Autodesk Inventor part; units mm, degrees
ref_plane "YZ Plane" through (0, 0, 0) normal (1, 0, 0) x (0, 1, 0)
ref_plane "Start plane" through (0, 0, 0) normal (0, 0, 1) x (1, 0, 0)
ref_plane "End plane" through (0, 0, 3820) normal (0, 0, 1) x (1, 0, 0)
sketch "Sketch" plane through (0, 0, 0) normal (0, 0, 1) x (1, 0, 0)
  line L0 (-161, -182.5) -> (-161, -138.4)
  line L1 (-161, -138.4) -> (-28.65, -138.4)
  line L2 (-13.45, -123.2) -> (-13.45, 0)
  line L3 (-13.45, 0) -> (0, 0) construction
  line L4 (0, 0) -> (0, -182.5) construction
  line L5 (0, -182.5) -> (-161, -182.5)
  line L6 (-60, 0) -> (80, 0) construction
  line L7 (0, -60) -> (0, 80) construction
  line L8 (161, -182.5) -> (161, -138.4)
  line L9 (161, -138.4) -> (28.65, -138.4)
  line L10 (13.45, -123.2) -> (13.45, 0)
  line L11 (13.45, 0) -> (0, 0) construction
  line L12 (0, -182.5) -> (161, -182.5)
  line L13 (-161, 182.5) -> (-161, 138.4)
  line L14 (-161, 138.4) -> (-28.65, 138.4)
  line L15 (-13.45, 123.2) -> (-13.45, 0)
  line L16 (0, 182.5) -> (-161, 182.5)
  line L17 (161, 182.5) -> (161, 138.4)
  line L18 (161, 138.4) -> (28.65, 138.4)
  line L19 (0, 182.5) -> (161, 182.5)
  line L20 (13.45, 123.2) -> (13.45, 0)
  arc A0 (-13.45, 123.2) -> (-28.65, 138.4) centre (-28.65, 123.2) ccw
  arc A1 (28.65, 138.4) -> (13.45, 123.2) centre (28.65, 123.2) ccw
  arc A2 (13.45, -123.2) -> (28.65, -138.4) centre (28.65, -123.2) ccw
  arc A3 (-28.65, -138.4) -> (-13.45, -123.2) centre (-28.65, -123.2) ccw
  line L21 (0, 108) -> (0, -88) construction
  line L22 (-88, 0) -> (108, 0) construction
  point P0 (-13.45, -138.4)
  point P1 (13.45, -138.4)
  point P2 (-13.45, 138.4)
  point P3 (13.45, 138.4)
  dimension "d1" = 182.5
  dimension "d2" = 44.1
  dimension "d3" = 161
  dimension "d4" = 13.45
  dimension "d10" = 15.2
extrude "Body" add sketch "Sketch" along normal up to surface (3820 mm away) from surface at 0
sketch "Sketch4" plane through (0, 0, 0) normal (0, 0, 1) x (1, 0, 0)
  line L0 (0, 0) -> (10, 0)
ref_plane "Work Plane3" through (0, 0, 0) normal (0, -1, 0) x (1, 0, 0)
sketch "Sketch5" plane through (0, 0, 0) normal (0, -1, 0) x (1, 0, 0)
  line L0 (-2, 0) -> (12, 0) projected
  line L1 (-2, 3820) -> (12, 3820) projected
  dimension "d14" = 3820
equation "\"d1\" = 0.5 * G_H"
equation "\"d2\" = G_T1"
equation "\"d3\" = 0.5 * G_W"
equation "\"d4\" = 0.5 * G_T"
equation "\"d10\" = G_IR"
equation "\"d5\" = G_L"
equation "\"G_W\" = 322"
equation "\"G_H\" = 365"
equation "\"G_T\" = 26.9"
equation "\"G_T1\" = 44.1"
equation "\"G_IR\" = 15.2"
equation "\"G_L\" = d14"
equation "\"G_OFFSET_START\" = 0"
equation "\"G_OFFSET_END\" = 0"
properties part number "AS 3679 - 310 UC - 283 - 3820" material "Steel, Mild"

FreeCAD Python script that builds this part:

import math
import FreeCAD as App
import Part
import Sketcher
from FreeCAD import Vector

doc = App.newDocument("Part")
body = doc.addObject("PartDesign::Body", "Body")

# Sketch on XY plane
sketch1 = doc.addObject("Sketcher::SketchObject", "Sketch")
body.addObject(sketch1)
sketch1.AttachmentSupport = (doc.XY_Plane, [""])
sketch1.MapMode = "FlatFace"
sketch1.addGeometry([
    Part.LineSegment(Vector(-161, -138.4, 0), Vector(-161, -182.5, 0)),  # 0
    Part.LineSegment(Vector(-161, -182.5, 0), Vector(161, -182.5, 0)),  # 1
    Part.LineSegment(Vector(161, -182.5, 0), Vector(161, -138.4, 0)),  # 2
    Part.LineSegment(Vector(161, -138.4, 0), Vector(28.65, -138.4, 0)),  # 3
    Part.ArcOfCircle(Part.Circle(Vector(28.65, -123.2, 0), Vector(0, 0, 1), 15.2), math.radians(180), math.radians(270)),  # 4
    Part.LineSegment(Vector(13.45, -123.2, 0), Vector(13.45, 123.2, 0)),  # 5
    Part.ArcOfCircle(Part.Circle(Vector(28.65, 123.2, 0), Vector(0, 0, 1), 15.2), math.radians(90), math.radians(180)),  # 6
    Part.LineSegment(Vector(28.65, 138.4, 0), Vector(161, 138.4, 0)),  # 7
    Part.LineSegment(Vector(161, 138.4, 0), Vector(161, 182.5, 0)),  # 8
    Part.LineSegment(Vector(161, 182.5, 0), Vector(-161, 182.5, 0)),  # 9
    Part.LineSegment(Vector(-161, 182.5, 0), Vector(-161, 138.4, 0)),  # 10
    Part.LineSegment(Vector(-161, 138.4, 0), Vector(-28.65, 138.4, 0)),  # 11
    Part.ArcOfCircle(Part.Circle(Vector(-28.65, 123.2, 0), Vector(0, 0, 1), 15.2), math.radians(0), math.radians(90)),  # 12
    Part.LineSegment(Vector(-13.45, 123.2, 0), Vector(-13.45, -123.2, 0)),  # 13
    Part.ArcOfCircle(Part.Circle(Vector(-28.65, -123.2, 0), Vector(0, 0, 1), 15.2), math.radians(-90), math.radians(0)),  # 14
    Part.LineSegment(Vector(-28.65, -138.4, 0), Vector(-161, -138.4, 0)),  # 15
], False)
sketch1.addConstraint([
    Sketcher.Constraint("Coincident", 0, 2, 1, 1),
    Sketcher.Constraint("Coincident", 1, 2, 2, 1),
    Sketcher.Constraint("Coincident", 2, 2, 3, 1),
    Sketcher.Constraint("Tangent", 3, 2, 4, 2),
    Sketcher.Constraint("Tangent", 4, 1, 5, 1),
    Sketcher.Constraint("Tangent", 5, 2, 6, 2),
    Sketcher.Constraint("Tangent", 6, 1, 7, 1),
    Sketcher.Constraint("Coincident", 7, 2, 8, 1),
    Sketcher.Constraint("Coincident", 8, 2, 9, 1),
    Sketcher.Constraint("Coincident", 9, 2, 10, 1),
    Sketcher.Constraint("Coincident", 10, 2, 11, 1),
    Sketcher.Constraint("Tangent", 11, 2, 12, 2),
    Sketcher.Constraint("Tangent", 12, 1, 13, 1),
    Sketcher.Constraint("Tangent", 13, 2, 14, 2),
    Sketcher.Constraint("Tangent", 14, 1, 15, 1),
    Sketcher.Constraint("Coincident", 15, 2, 0, 1),
    Sketcher.Constraint("Vertical", 0),
    Sketcher.Constraint("Horizontal", 1),
    Sketcher.Constraint("Vertical", 2),
    Sketcher.Constraint("Horizontal", 3),
    Sketcher.Constraint("Vertical", 5),
    Sketcher.Constraint("Horizontal", 7),
    Sketcher.Constraint("Vertical", 8),
    Sketcher.Constraint("Horizontal", 9),
    Sketcher.Constraint("Vertical", 10),
    Sketcher.Constraint("Horizontal", 11),
    Sketcher.Constraint("Vertical", 13),
    Sketcher.Constraint("Horizontal", 15),
    Sketcher.Constraint("Equal", 4, 6),
    Sketcher.Constraint("Equal", 6, 12),
    Sketcher.Constraint("Equal", 12, 14),
    Sketcher.Constraint("Symmetric", 4, 3, 12, 3, -1, 1),
    Sketcher.Constraint("Symmetric", 0, 2, 8, 2, -1, 1),
    Sketcher.Constraint("Symmetric", 7, 2, 10, 2, -2),
    Sketcher.Constraint("Symmetric", 2, 2, 15, 2, -2),
    Sketcher.Constraint("Radius", 4, 15.2),
    Sketcher.Constraint("DistanceY", 0, 2, 0, 1, 44.1),
    Sketcher.Constraint("DistanceX", 0, 2, -1, 1, 161.0),
    Sketcher.Constraint("DistanceY", 0, 2, -1, 1, 182.5),
    Sketcher.Constraint("DistanceX", -1, 1, 4, 1, 13.45),
])
pad1 = doc.addObject("PartDesign::Pad", "Pad")
body.addObject(pad1)
pad1.Profile = sketch1
pad1.Length = 3820

doc.recompute()
